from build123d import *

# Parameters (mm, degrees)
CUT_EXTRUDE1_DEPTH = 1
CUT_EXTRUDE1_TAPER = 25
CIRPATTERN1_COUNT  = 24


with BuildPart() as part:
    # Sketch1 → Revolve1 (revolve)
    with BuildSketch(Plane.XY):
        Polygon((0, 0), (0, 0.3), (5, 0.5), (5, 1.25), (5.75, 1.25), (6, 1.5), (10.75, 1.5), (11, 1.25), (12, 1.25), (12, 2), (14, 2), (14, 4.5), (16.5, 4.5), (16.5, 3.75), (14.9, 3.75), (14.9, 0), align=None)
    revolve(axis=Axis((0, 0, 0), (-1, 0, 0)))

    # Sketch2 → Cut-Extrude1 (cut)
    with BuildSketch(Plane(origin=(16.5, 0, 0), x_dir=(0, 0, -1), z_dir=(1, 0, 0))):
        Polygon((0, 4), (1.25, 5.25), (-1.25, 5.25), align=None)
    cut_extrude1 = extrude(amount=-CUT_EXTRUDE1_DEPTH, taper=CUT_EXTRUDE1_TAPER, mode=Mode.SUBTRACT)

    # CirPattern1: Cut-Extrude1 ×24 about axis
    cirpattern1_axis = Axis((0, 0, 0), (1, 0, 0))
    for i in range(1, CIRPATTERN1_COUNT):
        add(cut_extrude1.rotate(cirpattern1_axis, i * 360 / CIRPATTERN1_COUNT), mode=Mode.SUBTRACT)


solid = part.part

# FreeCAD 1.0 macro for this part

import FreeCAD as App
import Part
import Sketcher

doc = App.newDocument("Part")
body = doc.addObject("PartDesign::Body", "Body")

# Sketch on XY plane
sketch1 = body.newObject("Sketcher::SketchObject", "Sketch")
sketch1.AttachmentSupport = (doc.getObject("XY_Plane"), [""])
sketch1.MapMode = "FlatFace"
sketch1.addGeometry([
    Part.LineSegment(App.Vector(0, 0.3, 0), App.Vector(0, 0, 0)),  # 0
    Part.LineSegment(App.Vector(0, 0, 0), App.Vector(14.9, 0, 0)),  # 1
    Part.LineSegment(App.Vector(14.9, 0, 0), App.Vector(14.9, 3.75, 0)),  # 2
    Part.LineSegment(App.Vector(14.9, 3.75, 0), App.Vector(16.5, 3.75, 0)),  # 3
    Part.LineSegment(App.Vector(16.5, 3.75, 0), App.Vector(16.5, 4.5, 0)),  # 4
    Part.LineSegment(App.Vector(16.5, 4.5, 0), App.Vector(14, 4.5, 0)),  # 5
    Part.LineSegment(App.Vector(14, 4.5, 0), App.Vector(14, 2, 0)),  # 6
    Part.LineSegment(App.Vector(14, 2, 0), App.Vector(12, 2, 0)),  # 7
    Part.LineSegment(App.Vector(12, 2, 0), App.Vector(12, 1.25, 0)),  # 8
    Part.LineSegment(App.Vector(12, 1.25, 0), App.Vector(11, 1.25, 0)),  # 9
    Part.LineSegment(App.Vector(11, 1.25, 0), App.Vector(10.75, 1.5, 0)),  # 10
    Part.LineSegment(App.Vector(10.75, 1.5, 0), App.Vector(6, 1.5, 0)),  # 11
    Part.LineSegment(App.Vector(6, 1.5, 0), App.Vector(5.75, 1.25, 0)),  # 12
    Part.LineSegment(App.Vector(5.75, 1.25, 0), App.Vector(5, 1.25, 0)),  # 13
    Part.LineSegment(App.Vector(5, 1.25, 0), App.Vector(5, 0.5, 0)),  # 14
    Part.LineSegment(App.Vector(5, 0.5, 0), App.Vector(0, 0.3, 0)),  # 15
], False)
sketch1.addConstraint([
    Sketcher.Constraint("Coincident", 0, 2, 1, 1),
    Sketcher.Constraint("Coincident", 1, 2, 2, 1),
    Sketcher.Constraint("Coincident", 2, 2, 3, 1),
    Sketcher.Constraint("Coincident", 3, 2, 4, 1),
    Sketcher.Constraint("Coincident", 4, 2, 5, 1),
    Sketcher.Constraint("Coincident", 5, 2, 6, 1),
    Sketcher.Constraint("Coincident", 6, 2, 7, 1),
    Sketcher.Constraint("Coincident", 7, 2, 8, 1),
    Sketcher.Constraint("Coincident", 8, 2, 9, 1),
    Sketcher.Constraint("Coincident", 9, 2, 10, 1),
    Sketcher.Constraint("Coincident", 10, 2, 11, 1),
    Sketcher.Constraint("Coincident", 11, 2, 12, 1),
    Sketcher.Constraint("Coincident", 12, 2, 13, 1),
    Sketcher.Constraint("Coincident", 13, 2, 14, 1),
    Sketcher.Constraint("Coincident", 14, 2, 15, 1),
    Sketcher.Constraint("Coincident", 15, 2, 0, 1),
    Sketcher.Constraint("Vertical", 0),
    Sketcher.Constraint("Horizontal", 1),
    Sketcher.Constraint("Vertical", 2),
    Sketcher.Constraint("Horizontal", 3),
    Sketcher.Constraint("Vertical", 4),
    Sketcher.Constraint("Horizontal", 5),
    Sketcher.Constraint("Vertical", 6),
    Sketcher.Constraint("Horizontal", 7),
    Sketcher.Constraint("Vertical", 8),
    Sketcher.Constraint("Horizontal", 9),
    Sketcher.Constraint("Horizontal", 11),
    Sketcher.Constraint("Horizontal", 13),
    Sketcher.Constraint("Vertical", 14),
    Sketcher.Constraint("Coincident", 0, 2, -1, 1),
    Sketcher.Constraint("Perpendicular", 10, 12),
    Sketcher.Constraint("Horizontal", 9, 2, 12, 2),
    Sketcher.Constraint("Equal", 13, 4),
    Sketcher.Constraint("Equal", 5, 6),
    Sketcher.Constraint("Equal", 4, 8),
    Sketcher.Constraint("Equal", 8, 14),
    Sketcher.Constraint("Equal", 10, 12),
    Sketcher.Constraint("DistanceX", 7, 2, 7, 1, 2.0),
    Sketcher.Constraint("DistanceX", 9, 2, 9, 1, 1.0),
    Sketcher.Constraint("DistanceX", 1, 1, 1, 2, 14.9),
    Sketcher.Constraint("DistanceX", 3, 1, 3, 2, 1.6),
    Sketcher.Constraint("DistanceX", 5, 2, 5, 1, 2.5),
    Sketcher.Constraint("DistanceY", 0, 2, 0, 1, 0.3),
    Sketcher.Constraint("DistanceY", -1, 1, 6, 2, 2.0),
    Sketcher.Constraint("DistanceX", -1, 1, 11, 2, 6.0),
    Sketcher.Constraint("DistanceX", -1, 1, 13, 2, 5.0),
    Sketcher.Constraint("DistanceX", 11, 2, 11, 1, 4.75),
])
revolution = body.newObject("PartDesign::Revolution", "Revolution")
revolution.Profile = sketch1
revolution.ReferenceAxis = (sketch1, ["H_Axis"])
revolution.Angle = 360

# Sketch on YZ plane
sketch2 = body.newObject("Sketcher::SketchObject", "Sketch001")
sketch2.AttachmentSupport = (doc.getObject("YZ_Plane"), [""])
sketch2.MapMode = "FlatFace"
sketch2.AttachmentOffset = App.Placement(App.Vector(0, 0, 16.5), App.Rotation())
sketch2.addGeometry([
    Part.LineSegment(App.Vector(4, 0, 0), App.Vector(5.2, -1.2, 0)),
    Part.LineSegment(App.Vector(5.2, -1.2, 0), App.Vector(5.2, 1.2, 0)),
    Part.LineSegment(App.Vector(5.2, 1.2, 0), App.Vector(4, 0, 0)),
], False)
sketch2.addConstraint([
    Sketcher.Constraint("Coincident", 0, 2, 1, 1),
    Sketcher.Constraint("Coincident", 1, 2, 2, 1),
    Sketcher.Constraint("Coincident", 2, 2, 0, 1),
    Sketcher.Constraint("Vertical", 1),
    Sketcher.Constraint("PointOnObject", 2, 2, -1),
    Sketcher.Constraint("Perpendicular", 0, 2),
    Sketcher.Constraint("Equal", 0, 2),
    Sketcher.Constraint("DistanceY", 1, 1, 1, 2, 2.5),
    Sketcher.Constraint("DistanceX", -1, 1, 2, 2, 4.0),
])
pocket1 = body.newObject("PartDesign::Pocket", "Pocket")
pocket1.Profile = sketch2
pocket1.Length = 1
pocket1.TaperAngle = -25
doc.recompute()

polarpattern = body.newObject("PartDesign::PolarPattern", "PolarPattern")
polarpattern.Originals = [pocket1]
polarpattern.Axis = (doc.getObject("X_Axis"), [""])
polarpattern.Angle = 360
polarpattern.Occurrences = 24
body.Tip = polarpattern

doc.recompute()
